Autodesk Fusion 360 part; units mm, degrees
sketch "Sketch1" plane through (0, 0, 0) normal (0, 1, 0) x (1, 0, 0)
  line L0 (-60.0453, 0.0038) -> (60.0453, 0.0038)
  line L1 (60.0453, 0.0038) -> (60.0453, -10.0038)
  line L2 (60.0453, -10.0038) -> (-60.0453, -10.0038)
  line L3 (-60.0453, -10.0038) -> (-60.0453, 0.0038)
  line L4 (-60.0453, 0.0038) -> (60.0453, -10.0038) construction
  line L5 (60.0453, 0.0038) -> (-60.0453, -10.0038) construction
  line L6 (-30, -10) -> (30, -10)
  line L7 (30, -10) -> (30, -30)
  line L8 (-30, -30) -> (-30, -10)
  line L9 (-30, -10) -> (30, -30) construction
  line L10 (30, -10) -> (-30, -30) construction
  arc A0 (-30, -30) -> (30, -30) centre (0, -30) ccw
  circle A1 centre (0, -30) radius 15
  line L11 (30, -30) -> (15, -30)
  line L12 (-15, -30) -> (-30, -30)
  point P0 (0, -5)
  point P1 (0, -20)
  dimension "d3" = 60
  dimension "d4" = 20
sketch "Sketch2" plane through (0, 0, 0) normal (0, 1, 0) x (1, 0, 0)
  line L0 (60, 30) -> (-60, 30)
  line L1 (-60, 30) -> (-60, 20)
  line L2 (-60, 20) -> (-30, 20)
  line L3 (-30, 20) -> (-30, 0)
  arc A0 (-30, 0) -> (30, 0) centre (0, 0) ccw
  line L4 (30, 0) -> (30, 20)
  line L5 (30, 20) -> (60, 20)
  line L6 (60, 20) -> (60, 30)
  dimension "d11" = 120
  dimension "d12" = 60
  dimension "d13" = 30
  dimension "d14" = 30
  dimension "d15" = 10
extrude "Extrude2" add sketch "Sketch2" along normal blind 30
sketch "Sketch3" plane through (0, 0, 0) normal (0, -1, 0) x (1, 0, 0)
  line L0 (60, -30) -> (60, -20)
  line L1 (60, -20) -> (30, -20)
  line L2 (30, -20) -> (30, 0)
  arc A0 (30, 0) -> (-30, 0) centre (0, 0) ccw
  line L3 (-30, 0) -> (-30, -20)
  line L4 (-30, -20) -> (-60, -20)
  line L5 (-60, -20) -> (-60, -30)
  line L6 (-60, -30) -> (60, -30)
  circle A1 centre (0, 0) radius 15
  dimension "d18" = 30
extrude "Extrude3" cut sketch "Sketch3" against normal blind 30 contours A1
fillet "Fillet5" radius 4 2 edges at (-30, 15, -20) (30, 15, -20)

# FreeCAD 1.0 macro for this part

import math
import FreeCAD as App
import Part
import Sketcher
Q = App.Units.Quantity


def edges_at(feature, points):
    """Names of the edges that pass closest to the given points."""
    edges = feature.Shape.Edges
    near = lambda p: min(range(len(edges)), key=lambda i: edges[i].distToShape(Part.Vertex(*p))[0])
    return sorted({f"Edge{near(p) + 1}" for p in points})

doc = App.newDocument("Part")
body = doc.addObject("PartDesign::Body", "Body")

sketch1 = doc.addObject("Sketcher::SketchObject", "Sketch")
body.addObject(sketch1)
sketch1.AttachmentSupport = (doc.XZ_Plane, [""])
sketch1.MapMode = "FlatFace"
sketch1.addGeometry([
    Part.LineSegment(App.Vector(60, -20, 0), App.Vector(60, -30, 0)),
    Part.LineSegment(App.Vector(60, -30, 0), App.Vector(-60, -30, 0)),
    Part.LineSegment(App.Vector(-60, -30, 0), App.Vector(-60, -20, 0)),
    Part.LineSegment(App.Vector(-60, -20, 0), App.Vector(-30, -20, 0)),
    Part.LineSegment(App.Vector(-30, -20, 0), App.Vector(-30, 0, 0)),
    Part.ArcOfCircle(Part.Circle(App.Vector(0, 0, 0), App.Vector(0, 0, 1), 30), math.radians(0), math.radians(180)),
    Part.LineSegment(App.Vector(30, 0, 0), App.Vector(30, -20, 0)),
    Part.LineSegment(App.Vector(30, -20, 0), App.Vector(60, -20, 0)),
], False)
sketch1.addConstraint([
    Sketcher.Constraint("Coincident", 0, 2, 1, 1),
    Sketcher.Constraint("Coincident", 1, 2, 2, 1),
    Sketcher.Constraint("Coincident", 2, 2, 3, 1),
    Sketcher.Constraint("Coincident", 3, 2, 4, 1),
    Sketcher.Constraint("Tangent", 4, 2, 5, 2),
    Sketcher.Constraint("Tangent", 5, 1, 6, 1),
    Sketcher.Constraint("Coincident", 6, 2, 7, 1),
    Sketcher.Constraint("Coincident", 7, 2, 0, 1),
    Sketcher.Constraint("Vertical", 0),
    Sketcher.Constraint("Horizontal", 1),
    Sketcher.Constraint("Vertical", 2),
    Sketcher.Constraint("Horizontal", 3),
    Sketcher.Constraint("Vertical", 4),
    Sketcher.Constraint("Vertical", 6),
    Sketcher.Constraint("Horizontal", 7),
    Sketcher.Constraint("Coincident", 5, 3, -1, 1),
    Sketcher.Constraint("Symmetric", 2, 2, 7, 2, -2),
    Sketcher.Constraint("Radius", 5, Q("30 mm")),
    Sketcher.Constraint("DistanceX", 1, 2, 1, 1, Q("120 mm")),
    Sketcher.Constraint("DistanceY", 0, 2, 0, 1, Q("10 mm")),
    Sketcher.Constraint("DistanceY", 0, 2, -1, 1, Q("30 mm")),
])
pad1 = doc.addObject("PartDesign::Pad", "Pad")
body.addObject(pad1)
pad1.Profile = sketch1
pad1.Length = 30
pad1.Reversed = True

sketch2 = doc.addObject("Sketcher::SketchObject", "Sketch001")
body.addObject(sketch2)
sketch2.AttachmentSupport = (doc.XZ_Plane, [""])
sketch2.MapMode = "FlatFace"
sketch2.addGeometry(Part.Circle(App.Vector(0, 0, 0), App.Vector(0, 0, 1), 15), False)
sketch2.addConstraint([
    Sketcher.Constraint("Coincident", 0, 3, -1, 1),
    Sketcher.Constraint("Diameter", 0, Q("30 mm")),
])
pocket1 = doc.addObject("PartDesign::Pocket", "Pocket")
body.addObject(pocket1)
pocket1.Profile = sketch2
pocket1.Length = 30
doc.recompute()

fillet = doc.addObject("PartDesign::Fillet", "Fillet")
body.addObject(fillet)
fillet.Base = (pocket1, edges_at(pocket1, [(-30, 15, -20), (30, 15, -20)]))
fillet.Radius = 4

doc.recompute()
